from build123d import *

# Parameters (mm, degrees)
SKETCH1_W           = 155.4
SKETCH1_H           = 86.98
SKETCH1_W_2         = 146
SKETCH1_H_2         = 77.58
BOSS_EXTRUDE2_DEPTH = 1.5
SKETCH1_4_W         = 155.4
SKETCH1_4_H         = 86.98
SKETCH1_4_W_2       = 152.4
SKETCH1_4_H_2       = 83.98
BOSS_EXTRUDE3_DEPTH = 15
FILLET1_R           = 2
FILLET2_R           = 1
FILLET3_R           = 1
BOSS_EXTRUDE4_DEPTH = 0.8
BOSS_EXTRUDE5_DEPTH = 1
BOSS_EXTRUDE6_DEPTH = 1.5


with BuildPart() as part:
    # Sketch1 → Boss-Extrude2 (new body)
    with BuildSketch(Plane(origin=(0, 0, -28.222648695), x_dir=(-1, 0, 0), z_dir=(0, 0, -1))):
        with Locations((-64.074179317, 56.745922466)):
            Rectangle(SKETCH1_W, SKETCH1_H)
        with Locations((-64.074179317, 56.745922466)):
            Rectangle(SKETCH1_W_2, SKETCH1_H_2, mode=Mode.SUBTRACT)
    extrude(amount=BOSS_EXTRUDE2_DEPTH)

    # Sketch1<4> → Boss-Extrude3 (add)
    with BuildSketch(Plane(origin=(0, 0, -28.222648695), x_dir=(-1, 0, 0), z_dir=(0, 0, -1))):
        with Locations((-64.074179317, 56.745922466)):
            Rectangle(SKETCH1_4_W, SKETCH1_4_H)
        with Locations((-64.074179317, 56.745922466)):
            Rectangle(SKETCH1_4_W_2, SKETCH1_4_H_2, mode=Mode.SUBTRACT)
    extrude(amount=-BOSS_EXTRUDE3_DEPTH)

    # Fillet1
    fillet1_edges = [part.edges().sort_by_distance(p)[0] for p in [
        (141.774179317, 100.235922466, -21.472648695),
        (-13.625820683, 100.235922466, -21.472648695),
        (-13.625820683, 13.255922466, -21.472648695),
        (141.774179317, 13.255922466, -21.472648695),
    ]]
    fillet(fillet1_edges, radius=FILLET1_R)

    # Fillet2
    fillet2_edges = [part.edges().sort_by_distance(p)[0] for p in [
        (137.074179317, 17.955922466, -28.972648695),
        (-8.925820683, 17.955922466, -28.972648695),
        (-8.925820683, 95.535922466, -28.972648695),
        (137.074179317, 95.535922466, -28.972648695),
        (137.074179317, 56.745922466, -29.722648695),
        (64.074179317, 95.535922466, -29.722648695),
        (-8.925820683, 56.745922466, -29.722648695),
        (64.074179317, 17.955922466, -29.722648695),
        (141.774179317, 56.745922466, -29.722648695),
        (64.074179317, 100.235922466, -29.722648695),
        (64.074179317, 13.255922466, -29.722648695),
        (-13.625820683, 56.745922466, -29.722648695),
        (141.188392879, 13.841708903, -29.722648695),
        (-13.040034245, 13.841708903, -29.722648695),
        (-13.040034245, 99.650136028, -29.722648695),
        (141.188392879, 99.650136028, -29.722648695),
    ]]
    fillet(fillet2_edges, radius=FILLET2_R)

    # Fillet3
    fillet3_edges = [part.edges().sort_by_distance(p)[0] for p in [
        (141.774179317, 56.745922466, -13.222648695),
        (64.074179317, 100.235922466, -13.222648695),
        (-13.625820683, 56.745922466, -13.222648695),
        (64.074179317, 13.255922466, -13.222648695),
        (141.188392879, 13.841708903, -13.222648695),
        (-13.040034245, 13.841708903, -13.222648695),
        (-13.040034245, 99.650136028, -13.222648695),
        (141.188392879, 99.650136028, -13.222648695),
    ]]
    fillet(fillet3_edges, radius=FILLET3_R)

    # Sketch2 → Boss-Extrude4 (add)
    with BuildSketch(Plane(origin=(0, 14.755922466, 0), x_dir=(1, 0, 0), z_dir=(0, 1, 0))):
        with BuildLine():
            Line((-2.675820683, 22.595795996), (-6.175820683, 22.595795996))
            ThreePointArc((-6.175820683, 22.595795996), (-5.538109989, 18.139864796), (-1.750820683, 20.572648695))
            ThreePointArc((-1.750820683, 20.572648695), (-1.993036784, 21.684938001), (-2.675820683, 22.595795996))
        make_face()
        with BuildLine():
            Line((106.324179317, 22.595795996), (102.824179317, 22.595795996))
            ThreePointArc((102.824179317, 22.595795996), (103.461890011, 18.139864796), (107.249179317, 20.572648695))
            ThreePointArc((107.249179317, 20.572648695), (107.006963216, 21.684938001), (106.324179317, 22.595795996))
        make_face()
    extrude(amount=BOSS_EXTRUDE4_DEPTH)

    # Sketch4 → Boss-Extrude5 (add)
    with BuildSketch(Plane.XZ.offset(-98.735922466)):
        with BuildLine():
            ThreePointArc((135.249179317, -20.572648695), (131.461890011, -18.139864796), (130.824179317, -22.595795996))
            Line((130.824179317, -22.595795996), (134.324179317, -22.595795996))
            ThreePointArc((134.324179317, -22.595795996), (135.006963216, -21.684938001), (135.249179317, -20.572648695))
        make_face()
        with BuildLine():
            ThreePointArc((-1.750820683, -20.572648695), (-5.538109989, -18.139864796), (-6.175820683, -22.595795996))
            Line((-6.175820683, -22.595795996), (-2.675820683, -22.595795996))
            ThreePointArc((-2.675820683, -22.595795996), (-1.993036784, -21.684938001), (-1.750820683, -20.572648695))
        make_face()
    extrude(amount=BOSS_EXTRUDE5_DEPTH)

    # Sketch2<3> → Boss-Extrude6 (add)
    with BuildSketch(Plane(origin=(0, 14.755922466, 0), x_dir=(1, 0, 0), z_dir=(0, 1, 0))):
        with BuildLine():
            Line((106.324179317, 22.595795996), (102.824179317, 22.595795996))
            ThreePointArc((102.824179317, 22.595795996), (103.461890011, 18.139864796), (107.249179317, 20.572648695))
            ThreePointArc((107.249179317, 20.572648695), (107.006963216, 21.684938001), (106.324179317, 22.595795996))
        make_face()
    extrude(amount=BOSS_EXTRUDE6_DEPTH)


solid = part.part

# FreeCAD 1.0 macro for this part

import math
import FreeCAD as App
import Part
import Sketcher
Q = App.Units.Quantity


def edges_at(feature, points):
    """Names of the edges that pass closest to the given points."""
    edges = feature.Shape.Edges
    near = lambda p: min(range(len(edges)), key=lambda i: edges[i].distToShape(Part.Vertex(*p))[0])
    return sorted({f"Edge{near(p) + 1}" for p in points})

doc = App.newDocument("Part")
body = doc.addObject("PartDesign::Body", "Body")

# Sketch on XY plane
sketch1 = doc.addObject("Sketcher::SketchObject", "Sketch")
body.addObject(sketch1)
sketch1.AttachmentSupport = (doc.XY_Plane, [""])
sketch1.MapMode = "FlatFace"
sketch1.AttachmentOffset = App.Placement(App.Vector(0, 0, -28.222649), App.Rotation())
sketch1.addGeometry([
    Part.LineSegment(App.Vector(141.774179, 100.235922, 0), App.Vector(141.774179, 13.255922, 0)),  # 0
    Part.LineSegment(App.Vector(141.774179, 13.255922, 0), App.Vector(-13.625821, 13.255922, 0)),  # 1
    Part.LineSegment(App.Vector(-13.625821, 13.255922, 0), App.Vector(-13.625821, 100.235922, 0)),  # 2
    Part.LineSegment(App.Vector(-13.625821, 100.235922, 0), App.Vector(141.774179, 100.235922, 0)),  # 3
    Part.LineSegment(App.Vector(-8.925821, 17.955922, 0), App.Vector(137.074179, 17.955922, 0)),  # 4
    Part.LineSegment(App.Vector(137.074179, 17.955922, 0), App.Vector(137.074179, 95.535922, 0)),  # 5
    Part.LineSegment(App.Vector(137.074179, 95.535922, 0), App.Vector(-8.925821, 95.535922, 0)),  # 6
    Part.LineSegment(App.Vector(-8.925821, 95.535922, 0), App.Vector(-8.925821, 17.955922, 0)),  # 7
], False)
sketch1.addConstraint([
    Sketcher.Constraint("Coincident", 0, 2, 1, 1),
    Sketcher.Constraint("Coincident", 1, 2, 2, 1),
    Sketcher.Constraint("Coincident", 2, 2, 3, 1),
    Sketcher.Constraint("Coincident", 3, 2, 0, 1),
    Sketcher.Constraint("Coincident", 4, 2, 5, 1),
    Sketcher.Constraint("Coincident", 5, 2, 6, 1),
    Sketcher.Constraint("Coincident", 6, 2, 7, 1),
    Sketcher.Constraint("Coincident", 7, 2, 4, 1),
    Sketcher.Constraint("Vertical", 0),
    Sketcher.Constraint("Horizontal", 1),
    Sketcher.Constraint("Vertical", 2),
    Sketcher.Constraint("Horizontal", 3),
    Sketcher.Constraint("Horizontal", 4),
    Sketcher.Constraint("Vertical", 5),
    Sketcher.Constraint("Horizontal", 6),
    Sketcher.Constraint("Vertical", 7),
    Sketcher.Constraint("DistanceX", 4, 1, 4, 2, Q("146 mm")),
    Sketcher.Constraint("DistanceX", 1, 2, 1, 1, Q("155.4 mm")),
    Sketcher.Constraint("DistanceY", 0, 2, 0, 1, Q("86.98 mm")),
    Sketcher.Constraint("DistanceY", 5, 1, 5, 2, Q("77.58 mm")),
    Sketcher.Constraint("DistanceX", 4, 2, 0, 2, Q("4.7 mm")),
    Sketcher.Constraint("DistanceY", 0, 2, 4, 2, Q("4.7 mm")),
    Sketcher.Constraint("DistanceX", -1, 1, 0, 2, Q("141.774179 mm")),
    Sketcher.Constraint("DistanceY", -1, 1, 0, 2, Q("13.255922 mm")),
])
pad1 = doc.addObject("PartDesign::Pad", "Pad")
body.addObject(pad1)
pad1.Profile = sketch1
pad1.Length = 1.5
pad1.Reversed = True

# Sketch on XY plane
sketch2 = doc.addObject("Sketcher::SketchObject", "Sketch001")
body.addObject(sketch2)
sketch2.AttachmentSupport = (doc.XY_Plane, [""])
sketch2.MapMode = "FlatFace"
sketch2.AttachmentOffset = App.Placement(App.Vector(0, 0, -28.222649), App.Rotation())
sketch2.addGeometry([
    Part.LineSegment(App.Vector(141.774179, 100.235922, 0), App.Vector(141.774179, 13.255922, 0)),  # 0
    Part.LineSegment(App.Vector(141.774179, 13.255922, 0), App.Vector(-13.625821, 13.255922, 0)),  # 1
    Part.LineSegment(App.Vector(-13.625821, 13.255922, 0), App.Vector(-13.625821, 100.235922, 0)),  # 2
    Part.LineSegment(App.Vector(-13.625821, 100.235922, 0), App.Vector(141.774179, 100.235922, 0)),  # 3
    Part.LineSegment(App.Vector(-12.125821, 14.755922, 0), App.Vector(140.274179, 14.755922, 0)),  # 4
    Part.LineSegment(App.Vector(140.274179, 14.755922, 0), App.Vector(140.274179, 98.735922, 0)),  # 5
    Part.LineSegment(App.Vector(140.274179, 98.735922, 0), App.Vector(-12.125821, 98.735922, 0)),  # 6
    Part.LineSegment(App.Vector(-12.125821, 98.735922, 0), App.Vector(-12.125821, 14.755922, 0)),  # 7
], False)
sketch2.addConstraint([
    Sketcher.Constraint("Coincident", 0, 2, 1, 1),
    Sketcher.Constraint("Coincident", 1, 2, 2, 1),
    Sketcher.Constraint("Coincident", 2, 2, 3, 1),
    Sketcher.Constraint("Coincident", 3, 2, 0, 1),
    Sketcher.Constraint("Coincident", 4, 2, 5, 1),
    Sketcher.Constraint("Coincident", 5, 2, 6, 1),
    Sketcher.Constraint("Coincident", 6, 2, 7, 1),
    Sketcher.Constraint("Coincident", 7, 2, 4, 1),
    Sketcher.Constraint("Vertical", 0),
    Sketcher.Constraint("Horizontal", 1),
    Sketcher.Constraint("Vertical", 2),
    Sketcher.Constraint("Horizontal", 3),
    Sketcher.Constraint("Horizontal", 4),
    Sketcher.Constraint("Vertical", 5),
    Sketcher.Constraint("Horizontal", 6),
    Sketcher.Constraint("Vertical", 7),
    Sketcher.Constraint("DistanceX", 1, 2, 1, 1, Q("155.4 mm")),
    Sketcher.Constraint("DistanceX", 4, 1, 4, 2, Q("152.4 mm")),
    Sketcher.Constraint("DistanceY", 0, 2, 0, 1, Q("86.98 mm")),
    Sketcher.Constraint("DistanceY", 5, 1, 5, 2, Q("83.98 mm")),
    Sketcher.Constraint("DistanceX", 4, 2, 0, 2, Q("1.5 mm")),
    Sketcher.Constraint("DistanceY", 0, 2, 4, 2, Q("1.5 mm")),
    Sketcher.Constraint("DistanceX", -1, 1, 0, 2, Q("141.774179 mm")),
    Sketcher.Constraint("DistanceY", -1, 1, 0, 2, Q("13.255922 mm")),
])
pad2 = doc.addObject("PartDesign::Pad", "Pad001")
body.addObject(pad2)
pad2.Profile = sketch2
pad2.Length = 15
doc.recompute()

fillet = doc.addObject("PartDesign::Fillet", "Fillet")
body.addObject(fillet)
fillet.Base = (pad2, edges_at(pad2, [
    (141.774, 100.236, -21.473),
    (-13.626, 100.236, -21.473),
    (-13.626, 13.256, -21.473),
    (141.774, 13.256, -21.473),
]))
fillet.Radius = 2
doc.recompute()

fillet2 = doc.addObject("PartDesign::Fillet", "Fillet001")
body.addObject(fillet2)
fillet2.Base = (fillet, edges_at(fillet, [
    (137.074, 17.956, -28.973),
    (-8.926, 17.956, -28.973),
    (-8.926, 95.536, -28.973),
    (137.074, 95.536, -28.973),
    (137.074, 56.746, -29.723),
    (64.074, 95.536, -29.723),
    (-8.926, 56.746, -29.723),
    (64.074, 17.956, -29.723),
    (141.774, 56.746, -29.723),
    (64.074, 100.236, -29.723),
    (64.074, 13.256, -29.723),
    (-13.626, 56.746, -29.723),
    (141.188, 13.842, -29.723),
    (-13.04, 13.842, -29.723),
    (-13.04, 99.65, -29.723),
    (141.188, 99.65, -29.723),
]))
fillet2.Radius = 1
doc.recompute()

fillet3 = doc.addObject("PartDesign::Fillet", "Fillet002")
body.addObject(fillet3)
fillet3.Base = (fillet2, edges_at(fillet2, [
    (141.774, 56.746, -13.223),
    (64.074, 100.236, -13.223),
    (-13.626, 56.746, -13.223),
    (64.074, 13.256, -13.223),
    (141.188, 13.842, -13.223),
    (-13.04, 13.842, -13.223),
    (-13.04, 99.65, -13.223),
    (141.188, 99.65, -13.223),
]))
fillet3.Radius = 1

# Sketch on XZ plane
sketch3 = doc.addObject("Sketcher::SketchObject", "Sketch002")
body.addObject(sketch3)
sketch3.AttachmentSupport = (doc.XZ_Plane, [""])
sketch3.MapMode = "FlatFace"
sketch3.AttachmentOffset = App.Placement(App.Vector(0, 0, -14.755922), App.Rotation())
sketch3.addGeometry([
    Part.LineSegment(App.Vector(-2.675821, -22.595796, 0), App.Vector(-6.175821, -22.595796, 0)),  # 0
    Part.ArcOfCircle(Part.Circle(App.Vector(-4.425821, -20.572649, 0), App.Vector(0, 0, 1), 2.675), math.radians(0), math.radians(229.140558)),  # 1
    Part.ArcOfCircle(Part.Circle(App.Vector(-4.425821, -20.572649, 0), App.Vector(0, 0, 1), 2.675), math.radians(-49.140558), math.radians(0)),  # 2
    Part.LineSegment(App.Vector(106.324179, -22.595796, 0), App.Vector(102.824179, -22.595796, 0)),  # 3
    Part.ArcOfCircle(Part.Circle(App.Vector(104.574179, -20.572649, 0), App.Vector(0, 0, 1), 2.675), math.radians(0), math.radians(229.140558)),  # 4
    Part.ArcOfCircle(Part.Circle(App.Vector(104.574179, -20.572649, 0), App.Vector(0, 0, 1), 2.675), math.radians(-49.140558), math.radians(0)),  # 5
], False)
sketch3.addConstraint([
    Sketcher.Constraint("Coincident", 0, 2, 1, 2),
    Sketcher.Constraint("Tangent", 1, 1, 2, 2),
    Sketcher.Constraint("Coincident", 2, 1, 0, 1),
    Sketcher.Constraint("Coincident", 3, 2, 4, 2),
    Sketcher.Constraint("Tangent", 4, 1, 5, 2),
    Sketcher.Constraint("Coincident", 5, 1, 3, 1),
    Sketcher.Constraint("Horizontal", 0),
    Sketcher.Constraint("Horizontal", 3),
    Sketcher.Constraint("Equal", 1, 2),
    Sketcher.Constraint("Equal", 2, 4),
    Sketcher.Constraint("Equal", 4, 5),
    Sketcher.Constraint("Horizontal", 2, 3, 4, 3),
    Sketcher.Constraint("Horizontal", 5, 3, 1, 1),
    Sketcher.Constraint("Horizontal", 2, 1, 3, 2),
    Sketcher.Constraint("Horizontal", 1, 1, 4, 1),
    Sketcher.Constraint("DistanceX", 0, 2, 0, 1, Q("3.5 mm")),
    Sketcher.Constraint("Radius", 1, Q("2.675 mm")),
    Sketcher.Constraint("DistanceX", 1, 3, 4, 3, Q("109 mm")),
    Sketcher.Constraint("DistanceX", 1, 3, -1, 1, Q("4.425821 mm")),
    Sketcher.Constraint("DistanceY", 1, 3, -1, 1, Q("20.572649 mm")),
])
pad3 = doc.addObject("PartDesign::Pad", "Pad002")
body.addObject(pad3)
pad3.Profile = sketch3
pad3.Length = 0.8
pad3.Reversed = True

# Sketch on XZ plane
sketch4 = doc.addObject("Sketcher::SketchObject", "Sketch003")
body.addObject(sketch4)
sketch4.AttachmentSupport = (doc.XZ_Plane, [""])
sketch4.MapMode = "FlatFace"
sketch4.AttachmentOffset = App.Placement(App.Vector(0, 0, -98.735922), App.Rotation())
sketch4.addGeometry([
    Part.ArcOfCircle(Part.Circle(App.Vector(132.574179, -20.572649, 0), App.Vector(0, 0, 1), 2.675), math.radians(0), math.radians(229.140558)),  # 0
    Part.LineSegment(App.Vector(130.824179, -22.595796, 0), App.Vector(134.324179, -22.595796, 0)),  # 1
    Part.ArcOfCircle(Part.Circle(App.Vector(132.574179, -20.572649, 0), App.Vector(0, 0, 1), 2.675), math.radians(-49.140558), math.radians(0)),  # 2
    Part.ArcOfCircle(Part.Circle(App.Vector(-4.425821, -20.572649, 0), App.Vector(0, 0, 1), 2.675), math.radians(0), math.radians(229.140558)),  # 3
    Part.LineSegment(App.Vector(-6.175821, -22.595796, 0), App.Vector(-2.675821, -22.595796, 0)),  # 4
    Part.ArcOfCircle(Part.Circle(App.Vector(-4.425821, -20.572649, 0), App.Vector(0, 0, 1), 2.675), math.radians(-49.140558), math.radians(0)),  # 5
], False)
sketch4.addConstraint([
    Sketcher.Constraint("Coincident", 0, 2, 1, 1),
    Sketcher.Constraint("Coincident", 1, 2, 2, 1),
    Sketcher.Constraint("Tangent", 2, 2, 0, 1),
    Sketcher.Constraint("Coincident", 3, 2, 4, 1),
    Sketcher.Constraint("Coincident", 4, 2, 5, 1),
    Sketcher.Constraint("Tangent", 5, 2, 3, 1),
    Sketcher.Constraint("Horizontal", 1),
    Sketcher.Constraint("Horizontal", 4),
    Sketcher.Constraint("Equal", 0, 2),
    Sketcher.Constraint("Equal", 2, 3),
    Sketcher.Constraint("Equal", 3, 5),
    Sketcher.Constraint("Horizontal", 2, 3, 3, 3),
    Sketcher.Constraint("Horizontal", 5, 3, 2, 2),
    Sketcher.Constraint("Horizontal", 1, 2, 3, 2),
    Sketcher.Constraint("Horizontal", 2, 2, 5, 2),
    Sketcher.Constraint("DistanceX", 1, 1, 1, 2, Q("3.5 mm")),
    Sketcher.Constraint("Radius", 0, Q("2.675 mm")),
    Sketcher.Constraint("DistanceX", 3, 3, 2, 3, Q("137 mm")),
    Sketcher.Constraint("DistanceX", -1, 1, 0, 3, Q("132.574179 mm")),
    Sketcher.Constraint("DistanceY", 0, 3, -1, 1, Q("20.572649 mm")),
])
pad4 = doc.addObject("PartDesign::Pad", "Pad003")
body.addObject(pad4)
pad4.Profile = sketch4
pad4.Length = 1

# Sketch on XZ plane
sketch5 = doc.addObject("Sketcher::SketchObject", "Sketch004")
body.addObject(sketch5)
sketch5.AttachmentSupport = (doc.XZ_Plane, [""])
sketch5.MapMode = "FlatFace"
sketch5.AttachmentOffset = App.Placement(App.Vector(0, 0, -14.755922), App.Rotation())
sketch5.addGeometry([
    Part.LineSegment(App.Vector(106.324179, -22.595796, 0), App.Vector(102.824179, -22.595796, 0)),
    Part.ArcOfCircle(Part.Circle(App.Vector(104.574179, -20.572649, 0), App.Vector(0, 0, 1), 2.675), math.radians(0), math.radians(229.140558)),
    Part.ArcOfCircle(Part.Circle(App.Vector(104.574179, -20.572649, 0), App.Vector(0, 0, 1), 2.675), math.radians(-49.140558), math.radians(0)),
], False)
sketch5.addConstraint([
    Sketcher.Constraint("Coincident", 0, 2, 1, 2),
    Sketcher.Constraint("Tangent", 1, 1, 2, 2),
    Sketcher.Constraint("Coincident", 2, 1, 0, 1),
    Sketcher.Constraint("Horizontal", 0),
    Sketcher.Constraint("Equal", 1, 2),
    Sketcher.Constraint("Horizontal", 2, 3, 1, 1),
    Sketcher.Constraint("DistanceX", 0, 2, 0, 1, Q("3.5 mm")),
    Sketcher.Constraint("Radius", 1, Q("2.675 mm")),
    Sketcher.Constraint("DistanceX", -1, 1, 1, 3, Q("104.574179 mm")),
    Sketcher.Constraint("DistanceY", 1, 3, -1, 1, Q("20.572649 mm")),
])
pad5 = doc.addObject("PartDesign::Pad", "Pad004")
body.addObject(pad5)
pad5.Profile = sketch5
pad5.Length = 1.5
pad5.Reversed = True

doc.recompute()
